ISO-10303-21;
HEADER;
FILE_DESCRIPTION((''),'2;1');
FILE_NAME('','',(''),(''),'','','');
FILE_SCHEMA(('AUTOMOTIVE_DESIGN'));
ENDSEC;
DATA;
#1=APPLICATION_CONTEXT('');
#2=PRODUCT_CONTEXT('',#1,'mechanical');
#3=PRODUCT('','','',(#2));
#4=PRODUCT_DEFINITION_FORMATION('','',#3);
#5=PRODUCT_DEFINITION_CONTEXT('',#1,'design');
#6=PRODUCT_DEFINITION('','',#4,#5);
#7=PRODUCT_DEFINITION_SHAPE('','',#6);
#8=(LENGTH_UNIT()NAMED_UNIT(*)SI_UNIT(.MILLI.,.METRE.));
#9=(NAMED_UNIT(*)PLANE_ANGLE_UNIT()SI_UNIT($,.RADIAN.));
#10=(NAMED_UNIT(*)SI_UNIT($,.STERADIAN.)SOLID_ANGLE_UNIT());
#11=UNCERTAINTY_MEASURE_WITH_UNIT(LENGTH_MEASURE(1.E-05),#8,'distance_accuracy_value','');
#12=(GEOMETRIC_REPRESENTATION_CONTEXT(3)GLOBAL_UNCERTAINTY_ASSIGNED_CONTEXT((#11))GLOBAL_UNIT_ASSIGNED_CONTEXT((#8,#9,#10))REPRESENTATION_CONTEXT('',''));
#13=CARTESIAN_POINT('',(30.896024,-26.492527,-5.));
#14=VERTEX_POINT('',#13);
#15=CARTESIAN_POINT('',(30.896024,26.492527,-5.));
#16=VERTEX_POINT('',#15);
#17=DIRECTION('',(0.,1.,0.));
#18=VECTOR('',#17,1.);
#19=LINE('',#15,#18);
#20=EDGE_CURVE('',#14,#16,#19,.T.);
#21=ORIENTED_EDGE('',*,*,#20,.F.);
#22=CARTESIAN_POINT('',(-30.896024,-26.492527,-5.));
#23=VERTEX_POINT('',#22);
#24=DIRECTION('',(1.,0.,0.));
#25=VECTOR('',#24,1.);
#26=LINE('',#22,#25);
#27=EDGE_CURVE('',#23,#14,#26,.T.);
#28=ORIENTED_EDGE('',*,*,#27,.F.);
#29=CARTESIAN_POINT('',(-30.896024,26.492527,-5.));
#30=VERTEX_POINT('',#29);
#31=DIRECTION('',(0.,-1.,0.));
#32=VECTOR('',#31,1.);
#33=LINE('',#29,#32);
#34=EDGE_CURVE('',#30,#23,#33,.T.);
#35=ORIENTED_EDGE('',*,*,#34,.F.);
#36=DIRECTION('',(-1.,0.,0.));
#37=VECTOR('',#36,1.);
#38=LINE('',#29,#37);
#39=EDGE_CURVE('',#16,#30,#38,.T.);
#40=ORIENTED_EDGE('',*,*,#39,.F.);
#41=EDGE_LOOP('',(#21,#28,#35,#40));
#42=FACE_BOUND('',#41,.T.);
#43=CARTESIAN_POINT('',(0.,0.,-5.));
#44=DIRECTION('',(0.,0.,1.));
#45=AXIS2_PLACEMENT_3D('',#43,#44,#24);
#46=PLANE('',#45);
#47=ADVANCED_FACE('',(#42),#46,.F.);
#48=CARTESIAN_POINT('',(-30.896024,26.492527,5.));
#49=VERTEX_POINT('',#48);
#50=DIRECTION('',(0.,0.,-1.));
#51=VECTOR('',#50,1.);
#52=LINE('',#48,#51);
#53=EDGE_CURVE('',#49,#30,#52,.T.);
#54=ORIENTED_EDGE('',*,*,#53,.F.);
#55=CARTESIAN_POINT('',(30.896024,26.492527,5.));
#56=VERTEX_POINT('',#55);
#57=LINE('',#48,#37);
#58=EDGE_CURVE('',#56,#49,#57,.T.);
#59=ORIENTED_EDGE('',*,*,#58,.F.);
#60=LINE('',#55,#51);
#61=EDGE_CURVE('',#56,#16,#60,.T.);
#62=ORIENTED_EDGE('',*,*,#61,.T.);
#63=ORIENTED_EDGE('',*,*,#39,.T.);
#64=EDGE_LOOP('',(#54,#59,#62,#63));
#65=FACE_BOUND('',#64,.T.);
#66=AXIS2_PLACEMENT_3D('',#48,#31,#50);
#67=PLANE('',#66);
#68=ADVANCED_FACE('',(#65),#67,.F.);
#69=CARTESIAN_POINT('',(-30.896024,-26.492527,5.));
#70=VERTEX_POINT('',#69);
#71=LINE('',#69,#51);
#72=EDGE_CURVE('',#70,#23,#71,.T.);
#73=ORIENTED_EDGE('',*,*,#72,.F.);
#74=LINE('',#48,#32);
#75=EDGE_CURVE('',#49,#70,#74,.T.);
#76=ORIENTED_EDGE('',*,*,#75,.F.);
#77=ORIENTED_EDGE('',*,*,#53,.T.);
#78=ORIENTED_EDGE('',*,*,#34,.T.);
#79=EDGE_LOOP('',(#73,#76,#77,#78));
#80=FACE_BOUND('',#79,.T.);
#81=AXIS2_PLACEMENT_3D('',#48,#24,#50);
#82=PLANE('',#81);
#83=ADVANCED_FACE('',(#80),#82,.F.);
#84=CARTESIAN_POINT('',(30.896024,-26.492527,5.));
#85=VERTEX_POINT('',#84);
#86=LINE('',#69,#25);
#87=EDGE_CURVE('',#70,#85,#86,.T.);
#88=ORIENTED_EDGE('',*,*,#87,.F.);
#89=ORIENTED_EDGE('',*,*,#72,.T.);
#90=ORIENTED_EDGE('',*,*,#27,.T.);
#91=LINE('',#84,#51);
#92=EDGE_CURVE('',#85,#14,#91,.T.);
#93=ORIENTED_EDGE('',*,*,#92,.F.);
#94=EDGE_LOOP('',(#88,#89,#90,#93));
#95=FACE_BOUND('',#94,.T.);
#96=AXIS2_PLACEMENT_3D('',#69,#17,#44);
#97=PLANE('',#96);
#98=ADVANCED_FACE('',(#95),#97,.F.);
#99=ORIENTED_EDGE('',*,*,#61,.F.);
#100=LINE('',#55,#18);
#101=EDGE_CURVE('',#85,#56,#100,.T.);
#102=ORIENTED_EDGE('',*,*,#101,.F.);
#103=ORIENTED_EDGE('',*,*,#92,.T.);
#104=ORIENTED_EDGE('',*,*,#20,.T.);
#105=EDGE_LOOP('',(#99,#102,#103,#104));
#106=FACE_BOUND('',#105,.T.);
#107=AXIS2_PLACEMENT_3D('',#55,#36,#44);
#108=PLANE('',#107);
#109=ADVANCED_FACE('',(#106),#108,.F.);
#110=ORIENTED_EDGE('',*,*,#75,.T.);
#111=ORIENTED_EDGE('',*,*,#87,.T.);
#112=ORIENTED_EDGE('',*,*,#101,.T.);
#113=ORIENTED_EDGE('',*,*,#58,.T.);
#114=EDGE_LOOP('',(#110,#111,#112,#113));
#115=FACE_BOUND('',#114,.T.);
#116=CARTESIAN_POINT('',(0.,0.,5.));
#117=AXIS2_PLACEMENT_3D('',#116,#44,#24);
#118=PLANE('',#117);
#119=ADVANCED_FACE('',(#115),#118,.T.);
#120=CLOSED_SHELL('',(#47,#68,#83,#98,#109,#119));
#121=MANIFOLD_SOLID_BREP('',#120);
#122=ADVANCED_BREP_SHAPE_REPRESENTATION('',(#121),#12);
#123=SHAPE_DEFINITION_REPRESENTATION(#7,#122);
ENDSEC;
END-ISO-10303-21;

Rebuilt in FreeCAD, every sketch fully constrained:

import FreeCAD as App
import Part
import Sketcher
Q = App.Units.Quantity

doc = App.newDocument("Part")
body = doc.addObject("PartDesign::Body", "Body")

sketch1 = body.newObject("Sketcher::SketchObject", "Sketch")
sketch1.AttachmentSupport = (doc.getObject("XY_Plane"), [""])
sketch1.MapMode = "FlatFace"
sketch1.addGeometry([
    Part.LineSegment(App.Vector(-31, 26, 0), App.Vector(-31, -26, 0)),
    Part.LineSegment(App.Vector(-31, -26, 0), App.Vector(31, -26, 0)),
    Part.LineSegment(App.Vector(31, -26, 0), App.Vector(31, 26, 0)),
    Part.LineSegment(App.Vector(31, 26, 0), App.Vector(-31, 26, 0)),
], False)
sketch1.addConstraint([
    Sketcher.Constraint("Coincident", 0, 2, 1, 1),
    Sketcher.Constraint("Coincident", 1, 2, 2, 1),
    Sketcher.Constraint("Coincident", 2, 2, 3, 1),
    Sketcher.Constraint("Coincident", 3, 2, 0, 1),
    Sketcher.Constraint("Vertical", 0),
    Sketcher.Constraint("Horizontal", 1),
    Sketcher.Constraint("Vertical", 2),
    Sketcher.Constraint("Horizontal", 3),
    Sketcher.Constraint("Symmetric", 0, 2, 2, 2, -1, 1),
    Sketcher.Constraint("DistanceX", 1, 1, 1, 2, Q("61.792049 mm")),
    Sketcher.Constraint("DistanceY", 0, 2, 0, 1, Q("52.985055 mm")),
])
pad1 = body.newObject("PartDesign::Pad", "Pad")
pad1.Profile = sketch1
pad1.Length = 10
pad1.Midplane = True

doc.recompute()
